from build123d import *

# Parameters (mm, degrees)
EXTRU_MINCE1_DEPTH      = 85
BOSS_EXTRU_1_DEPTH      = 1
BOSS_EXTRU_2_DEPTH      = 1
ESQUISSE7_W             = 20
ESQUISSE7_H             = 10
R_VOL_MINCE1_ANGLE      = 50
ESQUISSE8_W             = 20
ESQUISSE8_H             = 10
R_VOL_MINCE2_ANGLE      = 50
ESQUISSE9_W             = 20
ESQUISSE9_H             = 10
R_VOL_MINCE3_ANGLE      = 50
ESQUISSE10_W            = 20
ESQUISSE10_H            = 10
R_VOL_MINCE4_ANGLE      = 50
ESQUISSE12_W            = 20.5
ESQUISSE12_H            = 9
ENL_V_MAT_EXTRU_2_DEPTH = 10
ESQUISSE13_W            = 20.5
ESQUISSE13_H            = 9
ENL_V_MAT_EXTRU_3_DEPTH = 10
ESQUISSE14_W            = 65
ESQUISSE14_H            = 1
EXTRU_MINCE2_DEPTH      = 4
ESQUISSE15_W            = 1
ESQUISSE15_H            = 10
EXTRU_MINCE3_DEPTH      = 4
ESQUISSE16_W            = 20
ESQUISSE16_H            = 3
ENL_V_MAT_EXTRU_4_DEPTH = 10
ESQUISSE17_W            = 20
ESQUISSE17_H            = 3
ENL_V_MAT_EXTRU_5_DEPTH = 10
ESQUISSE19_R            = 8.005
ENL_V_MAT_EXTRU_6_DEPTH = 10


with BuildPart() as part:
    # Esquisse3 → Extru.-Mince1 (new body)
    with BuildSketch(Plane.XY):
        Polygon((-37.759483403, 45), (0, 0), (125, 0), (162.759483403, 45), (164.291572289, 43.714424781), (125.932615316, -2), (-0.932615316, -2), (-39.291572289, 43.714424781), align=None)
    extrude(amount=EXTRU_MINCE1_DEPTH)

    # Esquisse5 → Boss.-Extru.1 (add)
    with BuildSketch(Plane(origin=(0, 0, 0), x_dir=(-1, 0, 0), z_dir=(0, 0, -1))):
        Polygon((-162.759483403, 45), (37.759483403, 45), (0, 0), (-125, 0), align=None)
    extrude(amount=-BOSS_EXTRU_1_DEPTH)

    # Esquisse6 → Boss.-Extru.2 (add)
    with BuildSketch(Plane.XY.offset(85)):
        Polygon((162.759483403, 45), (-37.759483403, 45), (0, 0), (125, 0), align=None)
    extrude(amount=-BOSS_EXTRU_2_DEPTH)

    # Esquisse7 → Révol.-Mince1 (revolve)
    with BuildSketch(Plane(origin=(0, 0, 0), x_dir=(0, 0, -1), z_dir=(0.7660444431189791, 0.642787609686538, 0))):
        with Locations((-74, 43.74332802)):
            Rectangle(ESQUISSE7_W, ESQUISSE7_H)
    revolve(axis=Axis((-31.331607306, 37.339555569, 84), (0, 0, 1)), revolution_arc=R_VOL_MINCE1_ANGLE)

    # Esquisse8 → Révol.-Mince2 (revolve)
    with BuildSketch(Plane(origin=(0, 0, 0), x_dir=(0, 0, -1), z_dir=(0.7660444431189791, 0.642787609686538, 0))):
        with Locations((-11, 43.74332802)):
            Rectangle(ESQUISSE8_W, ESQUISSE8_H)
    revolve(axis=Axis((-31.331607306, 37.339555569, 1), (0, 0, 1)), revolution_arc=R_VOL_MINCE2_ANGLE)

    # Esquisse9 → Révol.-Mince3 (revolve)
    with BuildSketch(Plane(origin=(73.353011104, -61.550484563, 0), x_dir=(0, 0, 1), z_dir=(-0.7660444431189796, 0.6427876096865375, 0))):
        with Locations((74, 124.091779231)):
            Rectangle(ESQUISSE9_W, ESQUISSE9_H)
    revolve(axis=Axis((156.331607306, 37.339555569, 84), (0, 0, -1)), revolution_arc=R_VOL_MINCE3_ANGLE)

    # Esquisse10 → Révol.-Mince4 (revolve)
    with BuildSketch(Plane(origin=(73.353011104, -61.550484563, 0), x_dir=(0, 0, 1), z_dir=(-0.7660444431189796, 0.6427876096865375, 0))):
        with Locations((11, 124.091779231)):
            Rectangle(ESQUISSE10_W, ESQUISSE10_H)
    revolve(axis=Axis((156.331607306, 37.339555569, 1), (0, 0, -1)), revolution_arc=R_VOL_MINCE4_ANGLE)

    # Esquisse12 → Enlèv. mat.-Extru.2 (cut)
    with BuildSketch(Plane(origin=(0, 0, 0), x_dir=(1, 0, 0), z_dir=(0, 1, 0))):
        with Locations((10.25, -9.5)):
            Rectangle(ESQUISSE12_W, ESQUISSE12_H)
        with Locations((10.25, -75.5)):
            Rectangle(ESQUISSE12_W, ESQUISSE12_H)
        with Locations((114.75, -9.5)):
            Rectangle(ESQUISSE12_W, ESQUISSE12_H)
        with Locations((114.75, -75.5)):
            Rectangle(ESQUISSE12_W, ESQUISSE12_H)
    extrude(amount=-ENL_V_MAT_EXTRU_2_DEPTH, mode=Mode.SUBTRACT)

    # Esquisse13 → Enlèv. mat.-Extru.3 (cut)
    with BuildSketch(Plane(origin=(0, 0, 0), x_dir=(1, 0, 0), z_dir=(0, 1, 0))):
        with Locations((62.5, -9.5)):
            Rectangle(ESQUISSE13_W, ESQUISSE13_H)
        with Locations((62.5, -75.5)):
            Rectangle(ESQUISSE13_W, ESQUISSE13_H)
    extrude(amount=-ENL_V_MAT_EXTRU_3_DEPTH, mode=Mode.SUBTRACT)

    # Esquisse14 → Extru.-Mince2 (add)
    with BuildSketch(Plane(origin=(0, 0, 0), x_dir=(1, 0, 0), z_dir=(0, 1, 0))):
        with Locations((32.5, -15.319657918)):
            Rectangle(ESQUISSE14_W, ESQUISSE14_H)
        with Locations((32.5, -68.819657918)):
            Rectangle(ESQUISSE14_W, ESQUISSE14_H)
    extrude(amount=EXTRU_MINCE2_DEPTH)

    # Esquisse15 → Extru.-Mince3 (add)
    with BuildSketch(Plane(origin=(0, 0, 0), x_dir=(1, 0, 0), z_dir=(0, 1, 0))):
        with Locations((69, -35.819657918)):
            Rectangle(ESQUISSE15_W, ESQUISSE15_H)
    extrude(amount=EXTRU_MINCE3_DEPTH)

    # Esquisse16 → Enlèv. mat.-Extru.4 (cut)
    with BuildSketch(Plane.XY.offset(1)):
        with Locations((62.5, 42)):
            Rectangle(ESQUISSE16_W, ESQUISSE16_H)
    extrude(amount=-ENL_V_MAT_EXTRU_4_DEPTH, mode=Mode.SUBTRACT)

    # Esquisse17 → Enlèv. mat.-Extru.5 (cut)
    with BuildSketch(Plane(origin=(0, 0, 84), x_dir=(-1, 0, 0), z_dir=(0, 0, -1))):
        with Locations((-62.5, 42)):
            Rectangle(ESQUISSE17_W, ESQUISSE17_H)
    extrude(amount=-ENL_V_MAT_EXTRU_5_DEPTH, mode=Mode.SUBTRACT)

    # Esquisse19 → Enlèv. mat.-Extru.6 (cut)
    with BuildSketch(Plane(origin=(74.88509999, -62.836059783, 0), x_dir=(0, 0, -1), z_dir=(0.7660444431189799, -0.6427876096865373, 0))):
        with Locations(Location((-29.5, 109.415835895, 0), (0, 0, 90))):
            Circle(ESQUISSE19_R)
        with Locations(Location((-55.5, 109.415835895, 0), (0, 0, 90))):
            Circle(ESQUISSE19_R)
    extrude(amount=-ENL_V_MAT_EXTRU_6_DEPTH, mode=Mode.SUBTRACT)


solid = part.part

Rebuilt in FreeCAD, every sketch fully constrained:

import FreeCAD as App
import Part
import Sketcher

V = App.Vector
Q = App.Units.Quantity

doc = App.newDocument("Part")
body = doc.addObject("PartDesign::Body", "Body")

# Sketch on XY plane
sketch1 = doc.addObject("Sketcher::SketchObject", "Sketch")
body.addObject(sketch1)
sketch1.AttachmentSupport = (doc.XY_Plane, [""])
sketch1.MapMode = "FlatFace"
sketch1.addGeometry(Part.LineSegment(V(0, 0, 0), V(-37.8, 45, 0)), False)
sketch1.addGeometry(Part.LineSegment(V(-37.8, 45, 0), V(-39.3, 43.7, 0)), False)
sketch1.addGeometry(Part.LineSegment(V(-39.3, 43.7, 0), V(-0.9, -2, 0)), False)
sketch1.addGeometry(Part.LineSegment(V(-0.9, -2, 0), V(125.9, -2, 0)), False)
sketch1.addGeometry(Part.LineSegment(V(125.9, -2, 0), V(164.3, 43.7, 0)), False)
sketch1.addGeometry(Part.LineSegment(V(164.3, 43.7, 0), V(162.8, 45, 0)), False)
sketch1.addGeometry(Part.LineSegment(V(162.8, 45, 0), V(125, 0, 0)), False)
sketch1.addGeometry(Part.LineSegment(V(125, 0, 0), V(0, 0, 0)), False)
sketch1.addConstraint(Sketcher.Constraint("Coincident", 0, 2, 1, 1))
sketch1.addConstraint(Sketcher.Constraint("Coincident", 1, 2, 2, 1))
sketch1.addConstraint(Sketcher.Constraint("Coincident", 2, 2, 3, 1))
sketch1.addConstraint(Sketcher.Constraint("Coincident", 3, 2, 4, 1))
sketch1.addConstraint(Sketcher.Constraint("Coincident", 4, 2, 5, 1))
sketch1.addConstraint(Sketcher.Constraint("Coincident", 5, 2, 6, 1))
sketch1.addConstraint(Sketcher.Constraint("Coincident", 6, 2, 7, 1))
sketch1.addConstraint(Sketcher.Constraint("Coincident", 7, 2, 0, 1))
sketch1.addConstraint(Sketcher.Constraint("Horizontal", 3))
sketch1.addConstraint(Sketcher.Constraint("Horizontal", 7))
sketch1.addConstraint(Sketcher.Constraint("Coincident", 7, 2, -1, 1))
sketch1.addConstraint(Sketcher.Constraint("Perpendicular", 0, 1))
sketch1.addConstraint(Sketcher.Constraint("Perpendicular", 1, 2))
sketch1.addConstraint(Sketcher.Constraint("Perpendicular", 4, 5))
sketch1.addConstraint(Sketcher.Constraint("Perpendicular", 5, 6))
sketch1.addConstraint(Sketcher.Constraint("Horizontal", 1, 2, 4, 2))
sketch1.addConstraint(Sketcher.Constraint("Horizontal", 0, 2, 5, 2))
sketch1.addConstraint(Sketcher.Constraint("Equal", 2, 4))
sketch1.addConstraint(Sketcher.Constraint("DistanceX", 7, 2, 7, 1, Q("125 mm")))
sketch1.addConstraint(Sketcher.Constraint("Angle", 0, Q("130 deg")))
sketch1.addConstraint(Sketcher.Constraint("Distance", 1, Q("2 mm")))
sketch1.addConstraint(Sketcher.Constraint("DistanceY", -1, 1, 0, 2, Q("45 mm")))
sketch1.addConstraint(Sketcher.Constraint("DistanceY", 2, 2, -1, 1, Q("2 mm")))
pad1 = doc.addObject("PartDesign::Pad", "Pad")
body.addObject(pad1)
pad1.Profile = sketch1
pad1.Length = 85

# Sketch on XY plane
sketch2 = doc.addObject("Sketcher::SketchObject", "Sketch001")
body.addObject(sketch2)
sketch2.AttachmentSupport = (doc.XY_Plane, [""])
sketch2.MapMode = "FlatFace"
sketch2.addGeometry(Part.LineSegment(V(-38, 45, 0), V(163, 45, 0)), False)
sketch2.addGeometry(Part.LineSegment(V(163, 45, 0), V(125, 0, 0)), False)
sketch2.addGeometry(Part.LineSegment(V(125, 0, 0), V(0, 0, 0)), False)
sketch2.addGeometry(Part.LineSegment(V(0, 0, 0), V(-38, 45, 0)), False)
sketch2.addConstraint(Sketcher.Constraint("Coincident", 0, 2, 1, 1))
sketch2.addConstraint(Sketcher.Constraint("Coincident", 1, 2, 2, 1))
sketch2.addConstraint(Sketcher.Constraint("Coincident", 2, 2, 3, 1))
sketch2.addConstraint(Sketcher.Constraint("Coincident", 3, 2, 0, 1))
sketch2.addConstraint(Sketcher.Constraint("Horizontal", 0))
sketch2.addConstraint(Sketcher.Constraint("Horizontal", 2))
sketch2.addConstraint(Sketcher.Constraint("Coincident", 2, 2, -1, 1))
sketch2.addConstraint(Sketcher.Constraint("Equal", 1, 3))
sketch2.addConstraint(Sketcher.Constraint("DistanceX", 2, 2, 2, 1, Q("125 mm")))
sketch2.addConstraint(Sketcher.Constraint("Angle", 1, Q("-130 deg")))
sketch2.addConstraint(Sketcher.Constraint("DistanceY", -1, 1, 0, 2, Q("45 mm")))
pad2 = doc.addObject("PartDesign::Pad", "Pad001")
body.addObject(pad2)
pad2.Profile = sketch2
pad2.Length = 1

# Sketch on XY plane
sketch3 = doc.addObject("Sketcher::SketchObject", "Sketch002")
body.addObject(sketch3)
sketch3.AttachmentSupport = (doc.XY_Plane, [""])
sketch3.MapMode = "FlatFace"
sketch3.AttachmentOffset = App.Placement(V(0, 0, 85), App.Rotation())
sketch3.addGeometry(Part.LineSegment(V(163, 45, 0), V(-38, 45, 0)), False)
sketch3.addGeometry(Part.LineSegment(V(-38, 45, 0), V(0, 0, 0)), False)
sketch3.addGeometry(Part.LineSegment(V(0, 0, 0), V(125, 0, 0)), False)
sketch3.addGeometry(Part.LineSegment(V(125, 0, 0), V(163, 45, 0)), False)
sketch3.addConstraint(Sketcher.Constraint("Coincident", 0, 2, 1, 1))
sketch3.addConstraint(Sketcher.Constraint("Coincident", 1, 2, 2, 1))
sketch3.addConstraint(Sketcher.Constraint("Coincident", 2, 2, 3, 1))
sketch3.addConstraint(Sketcher.Constraint("Coincident", 3, 2, 0, 1))
sketch3.addConstraint(Sketcher.Constraint("Horizontal", 0))
sketch3.addConstraint(Sketcher.Constraint("Horizontal", 2))
sketch3.addConstraint(Sketcher.Constraint("Coincident", 1, 2, -1, 1))
sketch3.addConstraint(Sketcher.Constraint("Equal", 1, 3))
sketch3.addConstraint(Sketcher.Constraint("DistanceX", 2, 1, 2, 2, Q("125 mm")))
sketch3.addConstraint(Sketcher.Constraint("Angle", 1, Q("-50 deg")))
sketch3.addConstraint(Sketcher.Constraint("DistanceY", -1, 1, 0, 2, Q("45 mm")))
pad3 = doc.addObject("PartDesign::Pad", "Pad002")
body.addObject(pad3)
pad3.Profile = sketch3
pad3.Length = 1
pad3.Reversed = True

# Sketch on an angled plane
sketch4 = doc.addObject("Sketcher::SketchObject", "Sketch003")
body.addObject(sketch4)
sketch4.Placement = App.Placement(V(0, 0, 0), App.Rotation(V(0, 0, -1), V(-0.64278761, 0.766044443, 0), V(0.766044443, 0.64278761, 0), "ZXY"))
sketch4.addGeometry(Part.LineSegment(V(-84, 49, 0), V(-84, 39, 0)), False)
sketch4.addGeometry(Part.LineSegment(V(-84, 39, 0), V(-64, 39, 0)), False)
sketch4.addGeometry(Part.LineSegment(V(-64, 39, 0), V(-64, 49, 0)), False)
sketch4.addGeometry(Part.LineSegment(V(-64, 49, 0), V(-84, 49, 0)), False)
sketch4.addGeometry(Part.LineSegment(V(-64, 49, 0), V(-84, 49, 0)), True)  # axis
sketch4.addConstraint(Sketcher.Constraint("Coincident", 0, 2, 1, 1))
sketch4.addConstraint(Sketcher.Constraint("Coincident", 1, 2, 2, 1))
sketch4.addConstraint(Sketcher.Constraint("Coincident", 2, 2, 3, 1))
sketch4.addConstraint(Sketcher.Constraint("Coincident", 3, 2, 0, 1))
sketch4.addConstraint(Sketcher.Constraint("Vertical", 0))
sketch4.addConstraint(Sketcher.Constraint("Horizontal", 1))
sketch4.addConstraint(Sketcher.Constraint("Vertical", 2))
sketch4.addConstraint(Sketcher.Constraint("Horizontal", 3))
sketch4.addConstraint(Sketcher.Constraint("Horizontal", 4))
sketch4.addConstraint(Sketcher.Constraint("Coincident", 4, 1, 2, 2))
sketch4.addConstraint(Sketcher.Constraint("Vertical", 0, 2, 4, 2))
sketch4.addConstraint(Sketcher.Constraint("DistanceX", 1, 1, 1, 2, Q("20 mm")))
sketch4.addConstraint(Sketcher.Constraint("DistanceY", 0, 2, 0, 1, Q("10 mm")))
sketch4.addConstraint(Sketcher.Constraint("DistanceX", 0, 2, -1, 1, Q("84 mm")))
sketch4.addConstraint(Sketcher.Constraint("DistanceY", -1, 1, 0, 2, Q("38.743328 mm")))
revolution = doc.addObject("PartDesign::Revolution", "Revolution")
body.addObject(revolution)
revolution.Profile = sketch4
revolution.ReferenceAxis = (sketch4, ["Axis0"])
revolution.Angle = 50

# Sketch on an angled plane
sketch5 = doc.addObject("Sketcher::SketchObject", "Sketch004")
body.addObject(sketch5)
sketch5.Placement = App.Placement(V(0, 0, 0), App.Rotation(V(0, 0, -1), V(-0.64278761, 0.766044443, 0), V(0.766044443, 0.64278761, 0), "ZXY"))
sketch5.addGeometry(Part.LineSegment(V(-21, 49, 0), V(-21, 39, 0)), False)
sketch5.addGeometry(Part.LineSegment(V(-21, 39, 0), V(-1, 39, 0)), False)
sketch5.addGeometry(Part.LineSegment(V(-1, 39, 0), V(-1, 49, 0)), False)
sketch5.addGeometry(Part.LineSegment(V(-1, 49, 0), V(-21, 49, 0)), False)
sketch5.addGeometry(Part.LineSegment(V(-1, 49, 0), V(-21, 49, 0)), True)  # axis
sketch5.addConstraint(Sketcher.Constraint("Coincident", 0, 2, 1, 1))
sketch5.addConstraint(Sketcher.Constraint("Coincident", 1, 2, 2, 1))
sketch5.addConstraint(Sketcher.Constraint("Coincident", 2, 2, 3, 1))
sketch5.addConstraint(Sketcher.Constraint("Coincident", 3, 2, 0, 1))
sketch5.addConstraint(Sketcher.Constraint("Vertical", 0))
sketch5.addConstraint(Sketcher.Constraint("Horizontal", 1))
sketch5.addConstraint(Sketcher.Constraint("Vertical", 2))
sketch5.addConstraint(Sketcher.Constraint("Horizontal", 3))
sketch5.addConstraint(Sketcher.Constraint("Horizontal", 4))
sketch5.addConstraint(Sketcher.Constraint("Coincident", 4, 1, 2, 2))
sketch5.addConstraint(Sketcher.Constraint("Vertical", 0, 2, 4, 2))
sketch5.addConstraint(Sketcher.Constraint("DistanceX", 1, 1, 1, 2, Q("20 mm")))
sketch5.addConstraint(Sketcher.Constraint("DistanceY", 0, 2, 0, 1, Q("10 mm")))
sketch5.addConstraint(Sketcher.Constraint("DistanceX", 0, 2, -1, 1, Q("21 mm")))
sketch5.addConstraint(Sketcher.Constraint("DistanceY", -1, 1, 0, 2, Q("38.743328 mm")))
revolution2 = doc.addObject("PartDesign::Revolution", "Revolution001")
body.addObject(revolution2)
revolution2.Profile = sketch5
revolution2.ReferenceAxis = (sketch5, ["Axis0"])
revolution2.Angle = 50

# Sketch on an angled plane
sketch6 = doc.addObject("Sketcher::SketchObject", "Sketch005")
body.addObject(sketch6)
sketch6.Placement = App.Placement(V(73.353011, -61.550485, 0), App.Rotation(V(0, 0, 1), V(0.64278761, 0.766044443, 0), V(-0.766044443, 0.64278761, 0), "ZXY"))
sketch6.addGeometry(Part.LineSegment(V(64, 129, 0), V(64, 119, 0)), False)
sketch6.addGeometry(Part.LineSegment(V(64, 119, 0), V(84, 119, 0)), False)
sketch6.addGeometry(Part.LineSegment(V(84, 119, 0), V(84, 129, 0)), False)
sketch6.addGeometry(Part.LineSegment(V(84, 129, 0), V(64, 129, 0)), False)
sketch6.addGeometry(Part.LineSegment(V(84, 129, 0), V(64, 129, 0)), True)  # axis
sketch6.addConstraint(Sketcher.Constraint("Coincident", 0, 2, 1, 1))
sketch6.addConstraint(Sketcher.Constraint("Coincident", 1, 2, 2, 1))
sketch6.addConstraint(Sketcher.Constraint("Coincident", 2, 2, 3, 1))
sketch6.addConstraint(Sketcher.Constraint("Coincident", 3, 2, 0, 1))
sketch6.addConstraint(Sketcher.Constraint("Vertical", 0))
sketch6.addConstraint(Sketcher.Constraint("Horizontal", 1))
sketch6.addConstraint(Sketcher.Constraint("Vertical", 2))
sketch6.addConstraint(Sketcher.Constraint("Horizontal", 3))
sketch6.addConstraint(Sketcher.Constraint("Horizontal", 4))
sketch6.addConstraint(Sketcher.Constraint("Coincident", 4, 1, 2, 2))
sketch6.addConstraint(Sketcher.Constraint("Vertical", 0, 2, 4, 2))
sketch6.addConstraint(Sketcher.Constraint("DistanceX", 1, 1, 1, 2, Q("20 mm")))
sketch6.addConstraint(Sketcher.Constraint("DistanceY", 0, 2, 0, 1, Q("10 mm")))
sketch6.addConstraint(Sketcher.Constraint("DistanceX", -1, 1, 0, 2, Q("64 mm")))
sketch6.addConstraint(Sketcher.Constraint("DistanceY", -1, 1, 0, 2, Q("119.091779 mm")))
revolution3 = doc.addObject("PartDesign::Revolution", "Revolution002")
body.addObject(revolution3)
revolution3.Profile = sketch6
revolution3.ReferenceAxis = (sketch6, ["Axis0"])
revolution3.Angle = 50

# Sketch on an angled plane
sketch7 = doc.addObject("Sketcher::SketchObject", "Sketch006")
body.addObject(sketch7)
sketch7.Placement = App.Placement(V(73.353011, -61.550485, 0), App.Rotation(V(0, 0, 1), V(0.64278761, 0.766044443, 0), V(-0.766044443, 0.64278761, 0), "ZXY"))
sketch7.addGeometry(Part.LineSegment(V(1, 129, 0), V(1, 119, 0)), False)
sketch7.addGeometry(Part.LineSegment(V(1, 119, 0), V(21, 119, 0)), False)
sketch7.addGeometry(Part.LineSegment(V(21, 119, 0), V(21, 129, 0)), False)
sketch7.addGeometry(Part.LineSegment(V(21, 129, 0), V(1, 129, 0)), False)
sketch7.addGeometry(Part.LineSegment(V(21, 129, 0), V(1, 129, 0)), True)  # axis
sketch7.addConstraint(Sketcher.Constraint("Coincident", 0, 2, 1, 1))
sketch7.addConstraint(Sketcher.Constraint("Coincident", 1, 2, 2, 1))
sketch7.addConstraint(Sketcher.Constraint("Coincident", 2, 2, 3, 1))
sketch7.addConstraint(Sketcher.Constraint("Coincident", 3, 2, 0, 1))
sketch7.addConstraint(Sketcher.Constraint("Vertical", 0))
sketch7.addConstraint(Sketcher.Constraint("Horizontal", 1))
sketch7.addConstraint(Sketcher.Constraint("Vertical", 2))
sketch7.addConstraint(Sketcher.Constraint("Horizontal", 3))
sketch7.addConstraint(Sketcher.Constraint("Horizontal", 4))
sketch7.addConstraint(Sketcher.Constraint("Coincident", 4, 1, 2, 2))
sketch7.addConstraint(Sketcher.Constraint("Vertical", 0, 2, 4, 2))
sketch7.addConstraint(Sketcher.Constraint("DistanceX", 1, 1, 1, 2, Q("20 mm")))
sketch7.addConstraint(Sketcher.Constraint("DistanceY", 0, 2, 0, 1, Q("10 mm")))
sketch7.addConstraint(Sketcher.Constraint("DistanceX", -1, 1, 0, 2, Q("1 mm")))
sketch7.addConstraint(Sketcher.Constraint("DistanceY", -1, 1, 0, 2, Q("119.091779 mm")))
revolution4 = doc.addObject("PartDesign::Revolution", "Revolution003")
body.addObject(revolution4)
revolution4.Profile = sketch7
revolution4.ReferenceAxis = (sketch7, ["Axis0"])
revolution4.Angle = 50

# Sketch on XZ plane
sketch8 = doc.addObject("Sketcher::SketchObject", "Sketch007")
body.addObject(sketch8)
sketch8.AttachmentSupport = (doc.XZ_Plane, [""])
sketch8.MapMode = "FlatFace"
sketch8.addGeometry(Part.LineSegment(V(0, 5, 0), V(0, 14, 0)), False)
sketch8.addGeometry(Part.LineSegment(V(0, 14, 0), V(20, 14, 0)), False)
sketch8.addGeometry(Part.LineSegment(V(20, 14, 0), V(20, 5, 0)), False)
sketch8.addGeometry(Part.LineSegment(V(20, 5, 0), V(0, 5, 0)), False)
sketch8.addGeometry(Part.LineSegment(V(0, 71, 0), V(0, 80, 0)), False)
sketch8.addGeometry(Part.LineSegment(V(0, 80, 0), V(20, 80, 0)), False)
sketch8.addGeometry(Part.LineSegment(V(20, 80, 0), V(20, 71, 0)), False)
sketch8.addGeometry(Part.LineSegment(V(20, 71, 0), V(0, 71, 0)), False)
sketch8.addGeometry(Part.LineSegment(V(104, 5, 0), V(104, 14, 0)), False)
sketch8.addGeometry(Part.LineSegment(V(104, 14, 0), V(125, 14, 0)), False)
sketch8.addGeometry(Part.LineSegment(V(125, 14, 0), V(125, 5, 0)), False)
sketch8.addGeometry(Part.LineSegment(V(125, 5, 0), V(104, 5, 0)), False)
sketch8.addGeometry(Part.LineSegment(V(104, 71, 0), V(104, 80, 0)), False)
sketch8.addGeometry(Part.LineSegment(V(104, 80, 0), V(125, 80, 0)), False)
sketch8.addGeometry(Part.LineSegment(V(125, 80, 0), V(125, 71, 0)), False)
sketch8.addGeometry(Part.LineSegment(V(125, 71, 0), V(104, 71, 0)), False)
sketch8.addConstraint(Sketcher.Constraint("Coincident", 0, 2, 1, 1))
sketch8.addConstraint(Sketcher.Constraint("Coincident", 1, 2, 2, 1))
sketch8.addConstraint(Sketcher.Constraint("Coincident", 2, 2, 3, 1))
sketch8.addConstraint(Sketcher.Constraint("Coincident", 3, 2, 0, 1))
sketch8.addConstraint(Sketcher.Constraint("Coincident", 4, 2, 5, 1))
sketch8.addConstraint(Sketcher.Constraint("Coincident", 5, 2, 6, 1))
sketch8.addConstraint(Sketcher.Constraint("Coincident", 6, 2, 7, 1))
sketch8.addConstraint(Sketcher.Constraint("Coincident", 7, 2, 4, 1))
sketch8.addConstraint(Sketcher.Constraint("Coincident", 8, 2, 9, 1))
sketch8.addConstraint(Sketcher.Constraint("Coincident", 9, 2, 10, 1))
sketch8.addConstraint(Sketcher.Constraint("Coincident", 10, 2, 11, 1))
sketch8.addConstraint(Sketcher.Constraint("Coincident", 11, 2, 8, 1))
sketch8.addConstraint(Sketcher.Constraint("Coincident", 12, 2, 13, 1))
sketch8.addConstraint(Sketcher.Constraint("Coincident", 13, 2, 14, 1))
sketch8.addConstraint(Sketcher.Constraint("Coincident", 14, 2, 15, 1))
sketch8.addConstraint(Sketcher.Constraint("Coincident", 15, 2, 12, 1))
sketch8.addConstraint(Sketcher.Constraint("Vertical", 0))
sketch8.addConstraint(Sketcher.Constraint("Horizontal", 1))
sketch8.addConstraint(Sketcher.Constraint("Vertical", 2))
sketch8.addConstraint(Sketcher.Constraint("Horizontal", 3))
sketch8.addConstraint(Sketcher.Constraint("Vertical", 4))
sketch8.addConstraint(Sketcher.Constraint("Horizontal", 5))
sketch8.addConstraint(Sketcher.Constraint("Vertical", 6))
sketch8.addConstraint(Sketcher.Constraint("Horizontal", 7))
sketch8.addConstraint(Sketcher.Constraint("Vertical", 8))
sketch8.addConstraint(Sketcher.Constraint("Horizontal", 9))
sketch8.addConstraint(Sketcher.Constraint("Vertical", 10))
sketch8.addConstraint(Sketcher.Constraint("Horizontal", 11))
sketch8.addConstraint(Sketcher.Constraint("Vertical", 12))
sketch8.addConstraint(Sketcher.Constraint("Horizontal", 13))
sketch8.addConstraint(Sketcher.Constraint("Vertical", 14))
sketch8.addConstraint(Sketcher.Constraint("Horizontal", 15))
sketch8.addConstraint(Sketcher.Constraint("PointOnObject", 0, 2, -2))
sketch8.addConstraint(Sketcher.Constraint("PointOnObject", 4, 2, -2))
sketch8.addConstraint(Sketcher.Constraint("Horizontal", 1, 2, 8, 2))
sketch8.addConstraint(Sketcher.Constraint("Horizontal", 3, 2, 10, 2))
sketch8.addConstraint(Sketcher.Constraint("Horizontal", 5, 2, 12, 2))
sketch8.addConstraint(Sketcher.Constraint("Horizontal", 7, 2, 14, 2))
sketch8.addConstraint(Sketcher.Constraint("Vertical", 2, 2, 5, 2))
sketch8.addConstraint(Sketcher.Constraint("Vertical", 11, 2, 12, 2))
sketch8.addConstraint(Sketcher.Constraint("Vertical", 10, 2, 13, 2))
sketch8.addConstraint(Sketcher.Constraint("Equal", 7, 9))
sketch8.addConstraint(Sketcher.Constraint("Equal", 2, 4))
sketch8.addConstraint(Sketcher.Constraint("DistanceY", 0, 1, 0, 2, Q("9 mm")))
sketch8.addConstraint(Sketcher.Constraint("DistanceX", 1, 1, 1, 2, Q("20.5 mm")))
sketch8.addConstraint(Sketcher.Constraint("DistanceY", -1, 1, 0, 2, Q("14 mm")))
sketch8.addConstraint(Sketcher.Constraint("DistanceY", -1, 1, 4, 2, Q("80 mm")))
sketch8.addConstraint(Sketcher.Constraint("DistanceX", -1, 1, 9, 2, Q("125 mm")))
pocket1 = doc.addObject("PartDesign::Pocket", "Pocket")
body.addObject(pocket1)
pocket1.Profile = sketch8
pocket1.Length = 10
pocket1.Reversed = True

# Sketch on XZ plane
sketch9 = doc.addObject("Sketcher::SketchObject", "Sketch008")
body.addObject(sketch9)
sketch9.AttachmentSupport = (doc.XZ_Plane, [""])
sketch9.MapMode = "FlatFace"
sketch9.addGeometry(Part.LineSegment(V(52, 5, 0), V(52, 14, 0)), False)
sketch9.addGeometry(Part.LineSegment(V(52, 14, 0), V(73, 14, 0)), False)
sketch9.addGeometry(Part.LineSegment(V(73, 14, 0), V(73, 5, 0)), False)
sketch9.addGeometry(Part.LineSegment(V(73, 5, 0), V(52, 5, 0)), False)
sketch9.addGeometry(Part.LineSegment(V(52, 71, 0), V(52, 80, 0)), False)
sketch9.addGeometry(Part.LineSegment(V(52, 80, 0), V(73, 80, 0)), False)
sketch9.addGeometry(Part.LineSegment(V(73, 80, 0), V(73, 71, 0)), False)
sketch9.addGeometry(Part.LineSegment(V(73, 71, 0), V(52, 71, 0)), False)
sketch9.addConstraint(Sketcher.Constraint("Coincident", 0, 2, 1, 1))
sketch9.addConstraint(Sketcher.Constraint("Coincident", 1, 2, 2, 1))
sketch9.addConstraint(Sketcher.Constraint("Coincident", 2, 2, 3, 1))
sketch9.addConstraint(Sketcher.Constraint("Coincident", 3, 2, 0, 1))
sketch9.addConstraint(Sketcher.Constraint("Coincident", 4, 2, 5, 1))
sketch9.addConstraint(Sketcher.Constraint("Coincident", 5, 2, 6, 1))
sketch9.addConstraint(Sketcher.Constraint("Coincident", 6, 2, 7, 1))
sketch9.addConstraint(Sketcher.Constraint("Coincident", 7, 2, 4, 1))
sketch9.addConstraint(Sketcher.Constraint("Vertical", 0))
sketch9.addConstraint(Sketcher.Constraint("Horizontal", 1))
sketch9.addConstraint(Sketcher.Constraint("Vertical", 2))
sketch9.addConstraint(Sketcher.Constraint("Horizontal", 3))
sketch9.addConstraint(Sketcher.Constraint("Vertical", 4))
sketch9.addConstraint(Sketcher.Constraint("Horizontal", 5))
sketch9.addConstraint(Sketcher.Constraint("Vertical", 6))
sketch9.addConstraint(Sketcher.Constraint("Horizontal", 7))
sketch9.addConstraint(Sketcher.Constraint("Vertical", 3, 2, 4, 2))
sketch9.addConstraint(Sketcher.Constraint("Vertical", 2, 2, 5, 2))
sketch9.addConstraint(Sketcher.Constraint("Equal", 2, 4))
sketch9.addConstraint(Sketcher.Constraint("DistanceY", 0, 1, 0, 2, Q("9 mm")))
sketch9.addConstraint(Sketcher.Constraint("DistanceX", 1, 1, 1, 2, Q("20.5 mm")))
sketch9.addConstraint(Sketcher.Constraint("DistanceY", -1, 1, 0, 2, Q("14 mm")))
sketch9.addConstraint(Sketcher.Constraint("DistanceY", -1, 1, 4, 2, Q("80 mm")))
sketch9.addConstraint(Sketcher.Constraint("DistanceX", -1, 1, 0, 2, Q("52.25 mm")))
pocket2 = doc.addObject("PartDesign::Pocket", "Pocket001")
body.addObject(pocket2)
pocket2.Profile = sketch9
pocket2.Length = 10
pocket2.Reversed = True

# Sketch on XZ plane
sketch10 = doc.addObject("Sketcher::SketchObject", "Sketch009")
body.addObject(sketch10)
sketch10.AttachmentSupport = (doc.XZ_Plane, [""])
sketch10.MapMode = "FlatFace"
sketch10.addGeometry(Part.LineSegment(V(0, 14.8, 0), V(0, 15.8, 0)), False)
sketch10.addGeometry(Part.LineSegment(V(0, 15.8, 0), V(65, 15.8, 0)), False)
sketch10.addGeometry(Part.LineSegment(V(65, 15.8, 0), V(65, 14.8, 0)), False)
sketch10.addGeometry(Part.LineSegment(V(65, 14.8, 0), V(0, 14.8, 0)), False)
sketch10.addGeometry(Part.LineSegment(V(0, 68.3, 0), V(0, 69.3, 0)), False)
sketch10.addGeometry(Part.LineSegment(V(0, 69.3, 0), V(65, 69.3, 0)), False)
sketch10.addGeometry(Part.LineSegment(V(65, 69.3, 0), V(65, 68.3, 0)), False)
sketch10.addGeometry(Part.LineSegment(V(65, 68.3, 0), V(0, 68.3, 0)), False)
sketch10.addConstraint(Sketcher.Constraint("Coincident", 0, 2, 1, 1))
sketch10.addConstraint(Sketcher.Constraint("Coincident", 1, 2, 2, 1))
sketch10.addConstraint(Sketcher.Constraint("Coincident", 2, 2, 3, 1))
sketch10.addConstraint(Sketcher.Constraint("Coincident", 3, 2, 0, 1))
sketch10.addConstraint(Sketcher.Constraint("Coincident", 4, 2, 5, 1))
sketch10.addConstraint(Sketcher.Constraint("Coincident", 5, 2, 6, 1))
sketch10.addConstraint(Sketcher.Constraint("Coincident", 6, 2, 7, 1))
sketch10.addConstraint(Sketcher.Constraint("Coincident", 7, 2, 4, 1))
sketch10.addConstraint(Sketcher.Constraint("Vertical", 0))
sketch10.addConstraint(Sketcher.Constraint("Horizontal", 1))
sketch10.addConstraint(Sketcher.Constraint("Vertical", 2))
sketch10.addConstraint(Sketcher.Constraint("Horizontal", 3))
sketch10.addConstraint(Sketcher.Constraint("Vertical", 4))
sketch10.addConstraint(Sketcher.Constraint("Horizontal", 5))
sketch10.addConstraint(Sketcher.Constraint("Vertical", 6))
sketch10.addConstraint(Sketcher.Constraint("Horizontal", 7))
sketch10.addConstraint(Sketcher.Constraint("PointOnObject", 0, 2, -2))
sketch10.addConstraint(Sketcher.Constraint("PointOnObject", 4, 2, -2))
sketch10.addConstraint(Sketcher.Constraint("Vertical", 2, 2, 5, 2))
sketch10.addConstraint(Sketcher.Constraint("Equal", 2, 4))
sketch10.addConstraint(Sketcher.Constraint("DistanceX", 1, 1, 1, 2, Q("65 mm")))
sketch10.addConstraint(Sketcher.Constraint("DistanceY", 0, 1, 0, 2, Q("1 mm")))
sketch10.addConstraint(Sketcher.Constraint("DistanceY", 0, 2, 4, 2, Q("53.5 mm")))
sketch10.addConstraint(Sketcher.Constraint("DistanceY", -1, 1, 0, 2, Q("15.819658 mm")))
pad4 = doc.addObject("PartDesign::Pad", "Pad003")
body.addObject(pad4)
pad4.Profile = sketch10
pad4.Length = 4
pad4.Reversed = True

# Sketch on XZ plane
sketch11 = doc.addObject("Sketcher::SketchObject", "Sketch010")
body.addObject(sketch11)
sketch11.AttachmentSupport = (doc.XZ_Plane, [""])
sketch11.MapMode = "FlatFace"
sketch11.addGeometry(Part.LineSegment(V(68.5, 30.8, 0), V(68.5, 40.8, 0)), False)
sketch11.addGeometry(Part.LineSegment(V(68.5, 40.8, 0), V(69.5, 40.8, 0)), False)
sketch11.addGeometry(Part.LineSegment(V(69.5, 40.8, 0), V(69.5, 30.8, 0)), False)
sketch11.addGeometry(Part.LineSegment(V(69.5, 30.8, 0), V(68.5, 30.8, 0)), False)
sketch11.addConstraint(Sketcher.Constraint("Coincident", 0, 2, 1, 1))
sketch11.addConstraint(Sketcher.Constraint("Coincident", 1, 2, 2, 1))
sketch11.addConstraint(Sketcher.Constraint("Coincident", 2, 2, 3, 1))
sketch11.addConstraint(Sketcher.Constraint("Coincident", 3, 2, 0, 1))
sketch11.addConstraint(Sketcher.Constraint("Vertical", 0))
sketch11.addConstraint(Sketcher.Constraint("Horizontal", 1))
sketch11.addConstraint(Sketcher.Constraint("Vertical", 2))
sketch11.addConstraint(Sketcher.Constraint("Horizontal", 3))
sketch11.addConstraint(Sketcher.Constraint("DistanceX", 1, 1, 1, 2, Q("1 mm")))
sketch11.addConstraint(Sketcher.Constraint("DistanceY", 0, 1, 0, 2, Q("10 mm")))
sketch11.addConstraint(Sketcher.Constraint("DistanceX", -1, 1, 0, 2, Q("68.5 mm")))
sketch11.addConstraint(Sketcher.Constraint("DistanceY", -1, 1, 0, 2, Q("40.819658 mm")))
pad5 = doc.addObject("PartDesign::Pad", "Pad004")
body.addObject(pad5)
pad5.Profile = sketch11
pad5.Length = 4
pad5.Reversed = True

# Sketch on XY plane
sketch12 = doc.addObject("Sketcher::SketchObject", "Sketch011")
body.addObject(sketch12)
sketch12.AttachmentSupport = (doc.XY_Plane, [""])
sketch12.MapMode = "FlatFace"
sketch12.AttachmentOffset = App.Placement(V(0, 0, 1), App.Rotation())
sketch12.addGeometry(Part.LineSegment(V(52.5, 43.5, 0), V(52.5, 40.5, 0)), False)
sketch12.addGeometry(Part.LineSegment(V(52.5, 40.5, 0), V(72.5, 40.5, 0)), False)
sketch12.addGeometry(Part.LineSegment(V(72.5, 40.5, 0), V(72.5, 43.5, 0)), False)
sketch12.addGeometry(Part.LineSegment(V(72.5, 43.5, 0), V(52.5, 43.5, 0)), False)
sketch12.addConstraint(Sketcher.Constraint("Coincident", 0, 2, 1, 1))
sketch12.addConstraint(Sketcher.Constraint("Coincident", 1, 2, 2, 1))
sketch12.addConstraint(Sketcher.Constraint("Coincident", 2, 2, 3, 1))
sketch12.addConstraint(Sketcher.Constraint("Coincident", 3, 2, 0, 1))
sketch12.addConstraint(Sketcher.Constraint("Vertical", 0))
sketch12.addConstraint(Sketcher.Constraint("Horizontal", 1))
sketch12.addConstraint(Sketcher.Constraint("Vertical", 2))
sketch12.addConstraint(Sketcher.Constraint("Horizontal", 3))
sketch12.addConstraint(Sketcher.Constraint("DistanceX", 1, 1, 1, 2, Q("20 mm")))
sketch12.addConstraint(Sketcher.Constraint("DistanceY", 0, 2, 0, 1, Q("3 mm")))
sketch12.addConstraint(Sketcher.Constraint("DistanceX", -1, 1, 0, 2, Q("52.5 mm")))
sketch12.addConstraint(Sketcher.Constraint("DistanceY", -1, 1, 0, 2, Q("40.5 mm")))
pocket3 = doc.addObject("PartDesign::Pocket", "Pocket002")
body.addObject(pocket3)
pocket3.Profile = sketch12
pocket3.Length = 10

# Sketch on XY plane
sketch13 = doc.addObject("Sketcher::SketchObject", "Sketch012")
body.addObject(sketch13)
sketch13.AttachmentSupport = (doc.XY_Plane, [""])
sketch13.MapMode = "FlatFace"
sketch13.AttachmentOffset = App.Placement(V(0, 0, 84), App.Rotation())
sketch13.addGeometry(Part.LineSegment(V(72.5, 43.5, 0), V(72.5, 40.5, 0)), False)
sketch13.addGeometry(Part.LineSegment(V(72.5, 40.5, 0), V(52.5, 40.5, 0)), False)
sketch13.addGeometry(Part.LineSegment(V(52.5, 40.5, 0), V(52.5, 43.5, 0)), False)
sketch13.addGeometry(Part.LineSegment(V(52.5, 43.5, 0), V(72.5, 43.5, 0)), False)
sketch13.addConstraint(Sketcher.Constraint("Coincident", 0, 2, 1, 1))
sketch13.addConstraint(Sketcher.Constraint("Coincident", 1, 2, 2, 1))
sketch13.addConstraint(Sketcher.Constraint("Coincident", 2, 2, 3, 1))
sketch13.addConstraint(Sketcher.Constraint("Coincident", 3, 2, 0, 1))
sketch13.addConstraint(Sketcher.Constraint("Vertical", 0))
sketch13.addConstraint(Sketcher.Constraint("Horizontal", 1))
sketch13.addConstraint(Sketcher.Constraint("Vertical", 2))
sketch13.addConstraint(Sketcher.Constraint("Horizontal", 3))
sketch13.addConstraint(Sketcher.Constraint("DistanceX", 1, 2, 1, 1, Q("20 mm")))
sketch13.addConstraint(Sketcher.Constraint("DistanceY", 0, 2, 0, 1, Q("3 mm")))
sketch13.addConstraint(Sketcher.Constraint("DistanceX", -1, 1, 0, 2, Q("72.5 mm")))
sketch13.addConstraint(Sketcher.Constraint("DistanceY", -1, 1, 0, 2, Q("40.5 mm")))
pocket4 = doc.addObject("PartDesign::Pocket", "Pocket003")
body.addObject(pocket4)
pocket4.Profile = sketch13
pocket4.Length = 10
pocket4.Reversed = True

# Sketch on an angled plane
sketch14 = doc.addObject("Sketcher::SketchObject", "Sketch013")
body.addObject(sketch14)
sketch14.Placement = App.Placement(V(74.8851, -62.83606, 0), App.Rotation(V(0, 0, -1), V(0.64278761, 0.766044443, 0), V(0.766044443, -0.64278761, 0), "ZXY"))
sketch14.addGeometry(Part.Circle(V(-30, 109, 0), V(0, 0, 1), 8), False)
sketch14.addGeometry(Part.Circle(V(-56, 109, 0), V(0, 0, 1), 8), False)
sketch14.addConstraint(Sketcher.Constraint("Equal", 0, 1))
sketch14.addConstraint(Sketcher.Constraint("Horizontal", 0, 3, 1, 3))
sketch14.addConstraint(Sketcher.Constraint("Diameter", 0, Q("16.01 mm")))
sketch14.addConstraint(Sketcher.Constraint("DistanceX", 1, 3, 0, 3, Q("26 mm")))
sketch14.addConstraint(Sketcher.Constraint("DistanceX", 0, 3, -1, 1, Q("29.5 mm")))
sketch14.addConstraint(Sketcher.Constraint("DistanceY", -1, 1, 0, 3, Q("109.415836 mm")))
pocket5 = doc.addObject("PartDesign::Pocket", "Pocket004")
body.addObject(pocket5)
pocket5.Profile = sketch14
pocket5.Length = 10

doc.recompute()
